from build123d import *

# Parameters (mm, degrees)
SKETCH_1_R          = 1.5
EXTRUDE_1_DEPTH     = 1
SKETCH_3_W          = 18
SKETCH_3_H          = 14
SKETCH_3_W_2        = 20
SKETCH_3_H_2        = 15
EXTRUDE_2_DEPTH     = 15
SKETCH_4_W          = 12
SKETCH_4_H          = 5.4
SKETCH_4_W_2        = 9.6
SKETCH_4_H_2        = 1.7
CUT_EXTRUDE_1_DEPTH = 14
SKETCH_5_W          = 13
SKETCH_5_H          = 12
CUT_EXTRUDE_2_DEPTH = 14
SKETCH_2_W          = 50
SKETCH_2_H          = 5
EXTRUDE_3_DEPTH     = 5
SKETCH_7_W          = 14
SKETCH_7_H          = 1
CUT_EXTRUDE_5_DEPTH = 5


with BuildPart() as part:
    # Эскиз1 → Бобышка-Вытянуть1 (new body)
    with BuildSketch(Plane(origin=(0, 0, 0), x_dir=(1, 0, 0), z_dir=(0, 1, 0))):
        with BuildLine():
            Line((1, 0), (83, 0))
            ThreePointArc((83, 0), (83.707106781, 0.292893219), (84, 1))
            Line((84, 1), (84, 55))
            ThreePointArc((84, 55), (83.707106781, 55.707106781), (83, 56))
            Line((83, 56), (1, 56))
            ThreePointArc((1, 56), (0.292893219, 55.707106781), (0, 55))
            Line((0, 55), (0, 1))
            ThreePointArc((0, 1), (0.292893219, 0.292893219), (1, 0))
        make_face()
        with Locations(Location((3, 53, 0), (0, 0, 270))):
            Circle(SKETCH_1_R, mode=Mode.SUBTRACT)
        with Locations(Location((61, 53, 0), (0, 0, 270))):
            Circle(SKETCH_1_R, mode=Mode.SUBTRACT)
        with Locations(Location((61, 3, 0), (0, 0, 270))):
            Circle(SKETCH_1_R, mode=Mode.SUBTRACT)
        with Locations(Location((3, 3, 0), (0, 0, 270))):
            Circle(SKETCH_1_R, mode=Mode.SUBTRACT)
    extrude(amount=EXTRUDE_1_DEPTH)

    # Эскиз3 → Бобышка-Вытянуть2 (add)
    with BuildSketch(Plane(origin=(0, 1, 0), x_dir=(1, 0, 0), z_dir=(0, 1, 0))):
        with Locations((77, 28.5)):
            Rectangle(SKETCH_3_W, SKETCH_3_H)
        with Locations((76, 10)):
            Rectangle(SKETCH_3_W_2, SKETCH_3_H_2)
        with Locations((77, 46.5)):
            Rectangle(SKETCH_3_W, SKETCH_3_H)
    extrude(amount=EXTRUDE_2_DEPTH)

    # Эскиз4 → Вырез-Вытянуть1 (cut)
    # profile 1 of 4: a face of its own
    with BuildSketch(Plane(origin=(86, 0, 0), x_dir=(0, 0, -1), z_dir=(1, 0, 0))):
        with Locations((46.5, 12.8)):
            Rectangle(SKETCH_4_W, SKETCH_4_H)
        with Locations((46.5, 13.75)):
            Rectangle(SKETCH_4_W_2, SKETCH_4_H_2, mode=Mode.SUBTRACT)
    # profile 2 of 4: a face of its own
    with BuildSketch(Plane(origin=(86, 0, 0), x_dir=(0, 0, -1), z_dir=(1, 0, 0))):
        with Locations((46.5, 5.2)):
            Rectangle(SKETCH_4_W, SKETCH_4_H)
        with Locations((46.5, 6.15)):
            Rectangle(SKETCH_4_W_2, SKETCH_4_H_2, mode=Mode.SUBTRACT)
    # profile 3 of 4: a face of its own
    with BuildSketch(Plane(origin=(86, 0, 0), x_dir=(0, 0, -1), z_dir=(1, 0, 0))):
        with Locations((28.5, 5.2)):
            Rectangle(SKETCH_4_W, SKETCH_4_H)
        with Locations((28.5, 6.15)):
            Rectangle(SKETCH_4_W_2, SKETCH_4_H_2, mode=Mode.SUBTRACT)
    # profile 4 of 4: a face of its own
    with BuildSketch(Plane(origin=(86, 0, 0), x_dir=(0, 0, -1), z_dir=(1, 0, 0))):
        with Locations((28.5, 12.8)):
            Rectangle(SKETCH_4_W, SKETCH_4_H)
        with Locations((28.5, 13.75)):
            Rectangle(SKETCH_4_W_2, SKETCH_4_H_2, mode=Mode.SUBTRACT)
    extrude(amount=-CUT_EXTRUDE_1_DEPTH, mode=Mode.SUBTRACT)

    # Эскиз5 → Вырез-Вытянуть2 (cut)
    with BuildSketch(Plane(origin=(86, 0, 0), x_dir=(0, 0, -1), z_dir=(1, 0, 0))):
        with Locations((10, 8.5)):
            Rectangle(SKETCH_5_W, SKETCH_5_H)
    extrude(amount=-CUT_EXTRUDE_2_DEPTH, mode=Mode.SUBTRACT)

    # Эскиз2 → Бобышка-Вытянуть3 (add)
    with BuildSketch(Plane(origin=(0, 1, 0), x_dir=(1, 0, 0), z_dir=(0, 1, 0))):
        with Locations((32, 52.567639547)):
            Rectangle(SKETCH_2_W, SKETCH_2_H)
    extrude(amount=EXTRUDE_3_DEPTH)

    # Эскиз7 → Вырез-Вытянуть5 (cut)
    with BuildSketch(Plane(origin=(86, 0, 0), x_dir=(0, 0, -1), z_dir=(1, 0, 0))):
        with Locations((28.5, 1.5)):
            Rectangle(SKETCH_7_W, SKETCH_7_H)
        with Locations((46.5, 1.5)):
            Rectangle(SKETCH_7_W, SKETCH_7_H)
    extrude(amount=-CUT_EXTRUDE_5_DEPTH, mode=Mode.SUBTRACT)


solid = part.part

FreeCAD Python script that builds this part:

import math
import FreeCAD as App
import Part
import Sketcher
from FreeCAD import Vector
Q = App.Units.Quantity

doc = App.newDocument("Part")
body = doc.addObject("PartDesign::Body", "Body")

# Sketch on XZ plane
sketch1 = body.newObject("Sketcher::SketchObject", "Sketch")
sketch1.AttachmentSupport = (doc.getObject("XZ_Plane"), [""])
sketch1.MapMode = "FlatFace"
sketch1.addGeometry([
    Part.LineSegment(Vector(1, 0, 0), Vector(83, 0, 0)),  # 0
    Part.ArcOfCircle(Part.Circle(Vector(83, -1, 0), Vector(0, 0, 1), 1), math.radians(0), math.radians(90)),  # 1
    Part.LineSegment(Vector(84, -1, 0), Vector(84, -55, 0)),  # 2
    Part.ArcOfCircle(Part.Circle(Vector(83, -55, 0), Vector(0, 0, 1), 1), math.radians(-90), math.radians(0)),  # 3
    Part.LineSegment(Vector(83, -56, 0), Vector(1, -56, 0)),  # 4
    Part.ArcOfCircle(Part.Circle(Vector(1, -55, 0), Vector(0, 0, 1), 1), math.radians(-180), math.radians(-90)),  # 5
    Part.LineSegment(Vector(0, -55, 0), Vector(0, -1, 0)),  # 6
    Part.ArcOfCircle(Part.Circle(Vector(1, -1, 0), Vector(0, 0, 1), 1), math.radians(90), math.radians(180)),  # 7
    Part.Circle(Vector(3, -3, 0), Vector(0, 0, 1), 1.5),  # 8
    Part.Circle(Vector(61, -3, 0), Vector(0, 0, 1), 1.5),  # 9
    Part.Circle(Vector(3, -53, 0), Vector(0, 0, 1), 1.5),  # 10
    Part.Circle(Vector(61, -53, 0), Vector(0, 0, 1), 1.5),  # 11
], False)
sketch1.addConstraint([
    Sketcher.Constraint("Tangent", 0, 2, 1, 2),
    Sketcher.Constraint("Tangent", 1, 1, 2, 1),
    Sketcher.Constraint("Tangent", 2, 2, 3, 2),
    Sketcher.Constraint("Tangent", 3, 1, 4, 1),
    Sketcher.Constraint("Tangent", 4, 2, 5, 2),
    Sketcher.Constraint("Tangent", 5, 1, 6, 1),
    Sketcher.Constraint("Tangent", 6, 2, 7, 2),
    Sketcher.Constraint("Tangent", 7, 1, 0, 1),
    Sketcher.Constraint("Horizontal", 0),
    Sketcher.Constraint("Vertical", 2),
    Sketcher.Constraint("Horizontal", 4),
    Sketcher.Constraint("Vertical", 6),
    Sketcher.Constraint("Equal", 1, 3),
    Sketcher.Constraint("Equal", 3, 5),
    Sketcher.Constraint("Equal", 5, 7),
    Sketcher.Constraint("Equal", 8, 9),
    Sketcher.Constraint("Equal", 9, 10),
    Sketcher.Constraint("Equal", 10, 11),
    Sketcher.Constraint("PointOnObject", 0, 2, -1),
    Sketcher.Constraint("PointOnObject", 5, 1, -2),
    Sketcher.Constraint("Horizontal", 8, 3, 9, 3),
    Sketcher.Constraint("Horizontal", 10, 3, 11, 3),
    Sketcher.Constraint("Vertical", 8, 3, 10, 3),
    Sketcher.Constraint("Vertical", 9, 3, 11, 3),
    Sketcher.Constraint("Diameter", 8, Q("3 mm")),
    Sketcher.Constraint("Radius", 1, Q("1 mm")),
    Sketcher.Constraint("DistanceX", 0, 1, 0, 2, Q("82 mm")),
    Sketcher.Constraint("DistanceY", 2, 2, 2, 1, Q("54 mm")),
    Sketcher.Constraint("DistanceX", -1, 1, 8, 3, Q("3 mm")),
    Sketcher.Constraint("DistanceY", 8, 3, -1, 1, Q("3 mm")),
    Sketcher.Constraint("DistanceX", -1, 1, 9, 3, Q("61 mm")),
    Sketcher.Constraint("DistanceY", 10, 3, -1, 1, Q("53 mm")),
])
pad1 = body.newObject("PartDesign::Pad", "Pad")
pad1.Profile = sketch1
pad1.Length = 1
pad1.Reversed = True

# Sketch on XZ plane
sketch2 = body.newObject("Sketcher::SketchObject", "Sketch001")
sketch2.AttachmentSupport = (doc.getObject("XZ_Plane"), [""])
sketch2.MapMode = "FlatFace"
sketch2.AttachmentOffset = App.Placement(Vector(0, 0, -1), App.Rotation())
sketch2.addGeometry([
    Part.LineSegment(Vector(68, -36, 0), Vector(68, -22, 0)),  # 0
    Part.LineSegment(Vector(68, -22, 0), Vector(86, -22, 0)),  # 1
    Part.LineSegment(Vector(86, -22, 0), Vector(86, -36, 0)),  # 2
    Part.LineSegment(Vector(86, -36, 0), Vector(68, -36, 0)),  # 3
    Part.LineSegment(Vector(66, -18, 0), Vector(66, -2, 0)),  # 4
    Part.LineSegment(Vector(66, -2, 0), Vector(86, -2, 0)),  # 5
    Part.LineSegment(Vector(86, -2, 0), Vector(86, -18, 0)),  # 6
    Part.LineSegment(Vector(86, -18, 0), Vector(66, -18, 0)),  # 7
    Part.LineSegment(Vector(68, -54, 0), Vector(68, -40, 0)),  # 8
    Part.LineSegment(Vector(68, -40, 0), Vector(86, -40, 0)),  # 9
    Part.LineSegment(Vector(86, -40, 0), Vector(86, -54, 0)),  # 10
    Part.LineSegment(Vector(86, -54, 0), Vector(68, -54, 0)),  # 11
], False)
sketch2.addConstraint([
    Sketcher.Constraint("Coincident", 0, 2, 1, 1),
    Sketcher.Constraint("Coincident", 1, 2, 2, 1),
    Sketcher.Constraint("Coincident", 2, 2, 3, 1),
    Sketcher.Constraint("Coincident", 3, 2, 0, 1),
    Sketcher.Constraint("Coincident", 4, 2, 5, 1),
    Sketcher.Constraint("Coincident", 5, 2, 6, 1),
    Sketcher.Constraint("Coincident", 6, 2, 7, 1),
    Sketcher.Constraint("Coincident", 7, 2, 4, 1),
    Sketcher.Constraint("Coincident", 8, 2, 9, 1),
    Sketcher.Constraint("Coincident", 9, 2, 10, 1),
    Sketcher.Constraint("Coincident", 10, 2, 11, 1),
    Sketcher.Constraint("Coincident", 11, 2, 8, 1),
    Sketcher.Constraint("Vertical", 0),
    Sketcher.Constraint("Horizontal", 1),
    Sketcher.Constraint("Vertical", 2),
    Sketcher.Constraint("Horizontal", 3),
    Sketcher.Constraint("Vertical", 4),
    Sketcher.Constraint("Horizontal", 5),
    Sketcher.Constraint("Vertical", 6),
    Sketcher.Constraint("Horizontal", 7),
    Sketcher.Constraint("Vertical", 8),
    Sketcher.Constraint("Horizontal", 9),
    Sketcher.Constraint("Vertical", 10),
    Sketcher.Constraint("Horizontal", 11),
    Sketcher.Constraint("Vertical", 2, 2, 5, 2),
    Sketcher.Constraint("Vertical", 3, 2, 8, 2),
    Sketcher.Constraint("Vertical", 6, 2, 9, 2),
    Sketcher.Constraint("Equal", 2, 8),
    Sketcher.Constraint("DistanceX", 1, 1, 1, 2, Q("18 mm")),
    Sketcher.Constraint("DistanceX", 5, 1, 5, 2, Q("20 mm")),
    Sketcher.Constraint("DistanceY", 0, 1, 0, 2, Q("14 mm")),
    Sketcher.Constraint("DistanceY", 4, 1, 4, 2, Q("15 mm")),
    Sketcher.Constraint("DistanceX", -1, 1, 0, 2, Q("68 mm")),
    Sketcher.Constraint("DistanceY", 0, 2, 4, 2, Q("19 mm")),
    Sketcher.Constraint("DistanceY", 8, 2, 3, 2, Q("4 mm")),
    Sketcher.Constraint("DistanceY", 0, 2, -1, 1, Q("21.5 mm")),
])
pad2 = body.newObject("PartDesign::Pad", "Pad001")
pad2.Profile = sketch2
pad2.Length = 15
pad2.Reversed = True

# Sketch on YZ plane
sketch3 = body.newObject("Sketcher::SketchObject", "Sketch002")
sketch3.AttachmentSupport = (doc.getObject("YZ_Plane"), [""])
sketch3.MapMode = "FlatFace"
sketch3.AttachmentOffset = App.Placement(Vector(0, 0, 86), App.Rotation())
sketch3.addGeometry([
    Part.LineSegment(Vector(15.5, -40.5, 0), Vector(10.1, -40.5, 0)),  # 0
    Part.LineSegment(Vector(10.1, -40.5, 0), Vector(10.1, -52.5, 0)),  # 1
    Part.LineSegment(Vector(10.1, -52.5, 0), Vector(15.5, -52.5, 0)),  # 2
    Part.LineSegment(Vector(15.5, -52.5, 0), Vector(15.5, -40.5, 0)),  # 3
    Part.LineSegment(Vector(12.9, -51.3, 0), Vector(12.9, -41.7, 0)),  # 4
    Part.LineSegment(Vector(12.9, -41.7, 0), Vector(14.6, -41.7, 0)),  # 5
    Part.LineSegment(Vector(14.6, -41.7, 0), Vector(14.6, -51.3, 0)),  # 6
    Part.LineSegment(Vector(14.6, -51.3, 0), Vector(12.9, -51.3, 0)),  # 7
    Part.LineSegment(Vector(7.9, -40.5, 0), Vector(2.5, -40.5, 0)),  # 8
    Part.LineSegment(Vector(2.5, -40.5, 0), Vector(2.5, -52.5, 0)),  # 9
    Part.LineSegment(Vector(2.5, -52.5, 0), Vector(7.9, -52.5, 0)),  # 10
    Part.LineSegment(Vector(7.9, -52.5, 0), Vector(7.9, -40.5, 0)),  # 11
    Part.LineSegment(Vector(5.3, -51.3, 0), Vector(5.3, -41.7, 0)),  # 12
    Part.LineSegment(Vector(5.3, -41.7, 0), Vector(7, -41.7, 0)),  # 13
    Part.LineSegment(Vector(7, -41.7, 0), Vector(7, -51.3, 0)),  # 14
    Part.LineSegment(Vector(7, -51.3, 0), Vector(5.3, -51.3, 0)),  # 15
    Part.LineSegment(Vector(7.9, -22.5, 0), Vector(2.5, -22.5, 0)),  # 16
    Part.LineSegment(Vector(2.5, -22.5, 0), Vector(2.5, -34.5, 0)),  # 17
    Part.LineSegment(Vector(2.5, -34.5, 0), Vector(7.9, -34.5, 0)),  # 18
    Part.LineSegment(Vector(7.9, -34.5, 0), Vector(7.9, -22.5, 0)),  # 19
    Part.LineSegment(Vector(5.3, -33.3, 0), Vector(5.3, -23.7, 0)),  # 20
    Part.LineSegment(Vector(5.3, -23.7, 0), Vector(7, -23.7, 0)),  # 21
    Part.LineSegment(Vector(7, -23.7, 0), Vector(7, -33.3, 0)),  # 22
    Part.LineSegment(Vector(7, -33.3, 0), Vector(5.3, -33.3, 0)),  # 23
    Part.LineSegment(Vector(15.5, -22.5, 0), Vector(10.1, -22.5, 0)),  # 24
    Part.LineSegment(Vector(10.1, -22.5, 0), Vector(10.1, -34.5, 0)),  # 25
    Part.LineSegment(Vector(10.1, -34.5, 0), Vector(15.5, -34.5, 0)),  # 26
    Part.LineSegment(Vector(15.5, -34.5, 0), Vector(15.5, -22.5, 0)),  # 27
    Part.LineSegment(Vector(12.9, -33.3, 0), Vector(12.9, -23.7, 0)),  # 28
    Part.LineSegment(Vector(12.9, -23.7, 0), Vector(14.6, -23.7, 0)),  # 29
    Part.LineSegment(Vector(14.6, -23.7, 0), Vector(14.6, -33.3, 0)),  # 30
    Part.LineSegment(Vector(14.6, -33.3, 0), Vector(12.9, -33.3, 0)),  # 31
], False)
sketch3.addConstraint([
    Sketcher.Constraint("Coincident", 0, 2, 1, 1),
    Sketcher.Constraint("Coincident", 1, 2, 2, 1),
    Sketcher.Constraint("Coincident", 2, 2, 3, 1),
    Sketcher.Constraint("Coincident", 3, 2, 0, 1),
    Sketcher.Constraint("Coincident", 4, 2, 5, 1),
    Sketcher.Constraint("Coincident", 5, 2, 6, 1),
    Sketcher.Constraint("Coincident", 6, 2, 7, 1),
    Sketcher.Constraint("Coincident", 7, 2, 4, 1),
    Sketcher.Constraint("Coincident", 8, 2, 9, 1),
    Sketcher.Constraint("Coincident", 9, 2, 10, 1),
    Sketcher.Constraint("Coincident", 10, 2, 11, 1),
    Sketcher.Constraint("Coincident", 11, 2, 8, 1),
    Sketcher.Constraint("Coincident", 12, 2, 13, 1),
    Sketcher.Constraint("Coincident", 13, 2, 14, 1),
    Sketcher.Constraint("Coincident", 14, 2, 15, 1),
    Sketcher.Constraint("Coincident", 15, 2, 12, 1),
    Sketcher.Constraint("Coincident", 16, 2, 17, 1),
    Sketcher.Constraint("Coincident", 17, 2, 18, 1),
    Sketcher.Constraint("Coincident", 18, 2, 19, 1),
    Sketcher.Constraint("Coincident", 19, 2, 16, 1),
    Sketcher.Constraint("Coincident", 20, 2, 21, 1),
    Sketcher.Constraint("Coincident", 21, 2, 22, 1),
    Sketcher.Constraint("Coincident", 22, 2, 23, 1),
    Sketcher.Constraint("Coincident", 23, 2, 20, 1),
    Sketcher.Constraint("Coincident", 24, 2, 25, 1),
    Sketcher.Constraint("Coincident", 25, 2, 26, 1),
    Sketcher.Constraint("Coincident", 26, 2, 27, 1),
    Sketcher.Constraint("Coincident", 27, 2, 24, 1),
    Sketcher.Constraint("Coincident", 28, 2, 29, 1),
    Sketcher.Constraint("Coincident", 29, 2, 30, 1),
    Sketcher.Constraint("Coincident", 30, 2, 31, 1),
    Sketcher.Constraint("Coincident", 31, 2, 28, 1),
    Sketcher.Constraint("Horizontal", 0),
    Sketcher.Constraint("Vertical", 1),
    Sketcher.Constraint("Horizontal", 2),
    Sketcher.Constraint("Vertical", 3),
    Sketcher.Constraint("Vertical", 4),
    Sketcher.Constraint("Horizontal", 5),
    Sketcher.Constraint("Vertical", 6),
    Sketcher.Constraint("Horizontal", 7),
    Sketcher.Constraint("Horizontal", 8),
    Sketcher.Constraint("Vertical", 9),
    Sketcher.Constraint("Horizontal", 10),
    Sketcher.Constraint("Vertical", 11),
    Sketcher.Constraint("Vertical", 12),
    Sketcher.Constraint("Horizontal", 13),
    Sketcher.Constraint("Vertical", 14),
    Sketcher.Constraint("Horizontal", 15),
    Sketcher.Constraint("Horizontal", 16),
    Sketcher.Constraint("Vertical", 17),
    Sketcher.Constraint("Horizontal", 18),
    Sketcher.Constraint("Vertical", 19),
    Sketcher.Constraint("Vertical", 20),
    Sketcher.Constraint("Horizontal", 21),
    Sketcher.Constraint("Vertical", 22),
    Sketcher.Constraint("Horizontal", 23),
    Sketcher.Constraint("Horizontal", 24),
    Sketcher.Constraint("Vertical", 25),
    Sketcher.Constraint("Horizontal", 26),
    Sketcher.Constraint("Vertical", 27),
    Sketcher.Constraint("Vertical", 28),
    Sketcher.Constraint("Horizontal", 29),
    Sketcher.Constraint("Vertical", 30),
    Sketcher.Constraint("Horizontal", 31),
    Sketcher.Constraint("Horizontal", 3, 2, 8, 2),
    Sketcher.Constraint("Horizontal", 2, 2, 9, 2),
    Sketcher.Constraint("Horizontal", 5, 2, 12, 2),
    Sketcher.Constraint("Horizontal", 7, 2, 14, 2),
    Sketcher.Constraint("Horizontal", 19, 2, 24, 2),
    Sketcher.Constraint("Horizontal", 18, 2, 25, 2),
    Sketcher.Constraint("Horizontal", 21, 2, 28, 2),
    Sketcher.Constraint("Horizontal", 23, 2, 30, 2),
    Sketcher.Constraint("Vertical", 9, 2, 16, 2),
    Sketcher.Constraint("Vertical", 11, 2, 18, 2),
    Sketcher.Constraint("Vertical", 15, 2, 20, 2),
    Sketcher.Constraint("Vertical", 14, 2, 21, 2),
    Sketcher.Constraint("Vertical", 1, 2, 24, 2),
    Sketcher.Constraint("Vertical", 3, 2, 26, 2),
    Sketcher.Constraint("Vertical", 7, 2, 28, 2),
    Sketcher.Constraint("Vertical", 6, 2, 29, 2),
    Sketcher.Constraint("Equal", 2, 8),
    Sketcher.Constraint("Equal", 7, 13),
    Sketcher.Constraint("Equal", 11, 17),
    Sketcher.Constraint("Equal", 14, 20),
    Sketcher.Constraint("DistanceY", 1, 2, 1, 1, Q("12 mm")),
    Sketcher.Constraint("DistanceX", 0, 2, 0, 1, Q("5.4 mm")),
    Sketcher.Constraint("DistanceX", 5, 1, 5, 2, Q("1.7 mm")),
    Sketcher.Constraint("DistanceY", 4, 1, 4, 2, Q("9.6 mm")),
    Sketcher.Constraint("DistanceX", -1, 1, 13, 2, Q("7 mm")),
    Sketcher.Constraint("DistanceX", 8, 2, 3, 2, Q("13 mm")),
    Sketcher.Constraint("DistanceX", 10, 2, 7, 2, Q("5 mm")),
    Sketcher.Constraint("DistanceY", 8, 2, 16, 2, Q("18 mm")),
    Sketcher.Constraint("DistanceX", -1, 1, 0, 2, Q("10.1 mm")),
    Sketcher.Constraint("DistanceY", 0, 2, -1, 1, Q("40.5 mm")),
    Sketcher.Constraint("DistanceY", 4, 2, -1, 1, Q("41.7 mm")),
    Sketcher.Constraint("DistanceY", 20, 2, -1, 1, Q("23.7 mm")),
])
pocket1 = body.newObject("PartDesign::Pocket", "Pocket")
pocket1.Profile = sketch3
pocket1.Length = 14

# Sketch on YZ plane
sketch4 = body.newObject("Sketcher::SketchObject", "Sketch003")
sketch4.AttachmentSupport = (doc.getObject("YZ_Plane"), [""])
sketch4.MapMode = "FlatFace"
sketch4.AttachmentOffset = App.Placement(Vector(0, 0, 86), App.Rotation())
sketch4.addGeometry([
    Part.LineSegment(Vector(14, -4, 0), Vector(2, -4, 0)),
    Part.LineSegment(Vector(2, -4, 0), Vector(2, -16, 0)),
    Part.LineSegment(Vector(2, -16, 0), Vector(14, -16, 0)),
    Part.LineSegment(Vector(14, -16, 0), Vector(14, -4, 0)),
], False)
sketch4.addConstraint([
    Sketcher.Constraint("Coincident", 0, 2, 1, 1),
    Sketcher.Constraint("Coincident", 1, 2, 2, 1),
    Sketcher.Constraint("Coincident", 2, 2, 3, 1),
    Sketcher.Constraint("Coincident", 3, 2, 0, 1),
    Sketcher.Constraint("Horizontal", 0),
    Sketcher.Constraint("Vertical", 1),
    Sketcher.Constraint("Horizontal", 2),
    Sketcher.Constraint("Vertical", 3),
    Sketcher.Constraint("DistanceX", 0, 2, 0, 1, Q("12 mm")),
    Sketcher.Constraint("DistanceY", 1, 2, 1, 1, Q("13 mm")),
    Sketcher.Constraint("DistanceX", -1, 1, 0, 2, Q("2.5 mm")),
    Sketcher.Constraint("DistanceY", 0, 2, -1, 1, Q("3.5 mm")),
])
pocket2 = body.newObject("PartDesign::Pocket", "Pocket001")
pocket2.Profile = sketch4
pocket2.Length = 14

# Sketch on XZ plane
sketch5 = body.newObject("Sketcher::SketchObject", "Sketch004")
sketch5.AttachmentSupport = (doc.getObject("XZ_Plane"), [""])
sketch5.MapMode = "FlatFace"
sketch5.AttachmentOffset = App.Placement(Vector(0, 0, -1), App.Rotation())
sketch5.addGeometry([
    Part.LineSegment(Vector(7, -55, 0), Vector(7, -50, 0)),
    Part.LineSegment(Vector(7, -50, 0), Vector(57, -50, 0)),
    Part.LineSegment(Vector(57, -50, 0), Vector(57, -55, 0)),
    Part.LineSegment(Vector(57, -55, 0), Vector(7, -55, 0)),
], False)
sketch5.addConstraint([
    Sketcher.Constraint("Coincident", 0, 2, 1, 1),
    Sketcher.Constraint("Coincident", 1, 2, 2, 1),
    Sketcher.Constraint("Coincident", 2, 2, 3, 1),
    Sketcher.Constraint("Coincident", 3, 2, 0, 1),
    Sketcher.Constraint("Vertical", 0),
    Sketcher.Constraint("Horizontal", 1),
    Sketcher.Constraint("Vertical", 2),
    Sketcher.Constraint("Horizontal", 3),
    Sketcher.Constraint("DistanceX", 1, 1, 1, 2, Q("50 mm")),
    Sketcher.Constraint("DistanceY", 0, 1, 0, 2, Q("5 mm")),
    Sketcher.Constraint("DistanceX", -1, 1, 0, 2, Q("7 mm")),
    Sketcher.Constraint("DistanceY", 0, 2, -1, 1, Q("50.06764 mm")),
])
pad3 = body.newObject("PartDesign::Pad", "Pad002")
pad3.Profile = sketch5
pad3.Length = 5
pad3.Reversed = True

# Sketch on YZ plane
sketch6 = body.newObject("Sketcher::SketchObject", "Sketch005")
sketch6.AttachmentSupport = (doc.getObject("YZ_Plane"), [""])
sketch6.MapMode = "FlatFace"
sketch6.AttachmentOffset = App.Placement(Vector(0, 0, 86), App.Rotation())
sketch6.addGeometry([
    Part.LineSegment(Vector(2, -21.5, 0), Vector(1, -21.5, 0)),  # 0
    Part.LineSegment(Vector(1, -21.5, 0), Vector(1, -35.5, 0)),  # 1
    Part.LineSegment(Vector(1, -35.5, 0), Vector(2, -35.5, 0)),  # 2
    Part.LineSegment(Vector(2, -35.5, 0), Vector(2, -21.5, 0)),  # 3
    Part.LineSegment(Vector(2, -39.5, 0), Vector(1, -39.5, 0)),  # 4
    Part.LineSegment(Vector(1, -39.5, 0), Vector(1, -53.5, 0)),  # 5
    Part.LineSegment(Vector(1, -53.5, 0), Vector(2, -53.5, 0)),  # 6
    Part.LineSegment(Vector(2, -53.5, 0), Vector(2, -39.5, 0)),  # 7
], False)
sketch6.addConstraint([
    Sketcher.Constraint("Coincident", 0, 2, 1, 1),
    Sketcher.Constraint("Coincident", 1, 2, 2, 1),
    Sketcher.Constraint("Coincident", 2, 2, 3, 1),
    Sketcher.Constraint("Coincident", 3, 2, 0, 1),
    Sketcher.Constraint("Coincident", 4, 2, 5, 1),
    Sketcher.Constraint("Coincident", 5, 2, 6, 1),
    Sketcher.Constraint("Coincident", 6, 2, 7, 1),
    Sketcher.Constraint("Coincident", 7, 2, 4, 1),
    Sketcher.Constraint("Horizontal", 0),
    Sketcher.Constraint("Vertical", 1),
    Sketcher.Constraint("Horizontal", 2),
    Sketcher.Constraint("Vertical", 3),
    Sketcher.Constraint("Horizontal", 4),
    Sketcher.Constraint("Vertical", 5),
    Sketcher.Constraint("Horizontal", 6),
    Sketcher.Constraint("Vertical", 7),
    Sketcher.Constraint("Vertical", 1, 2, 4, 2),
    Sketcher.Constraint("Vertical", 3, 2, 6, 2),
    Sketcher.Constraint("Equal", 3, 5),
    Sketcher.Constraint("DistanceX", 0, 2, 0, 1, Q("1 mm")),
    Sketcher.Constraint("DistanceY", 1, 2, 1, 1, Q("14 mm")),
    Sketcher.Constraint("DistanceX", -1, 1, 0, 2, Q("1 mm")),
    Sketcher.Constraint("DistanceY", 4, 2, 1, 2, Q("4 mm")),
    Sketcher.Constraint("DistanceY", 0, 2, -1, 1, Q("21.5 mm")),
])
pocket3 = body.newObject("PartDesign::Pocket", "Pocket002")
pocket3.Profile = sketch6
pocket3.Length = 5

doc.recompute()
